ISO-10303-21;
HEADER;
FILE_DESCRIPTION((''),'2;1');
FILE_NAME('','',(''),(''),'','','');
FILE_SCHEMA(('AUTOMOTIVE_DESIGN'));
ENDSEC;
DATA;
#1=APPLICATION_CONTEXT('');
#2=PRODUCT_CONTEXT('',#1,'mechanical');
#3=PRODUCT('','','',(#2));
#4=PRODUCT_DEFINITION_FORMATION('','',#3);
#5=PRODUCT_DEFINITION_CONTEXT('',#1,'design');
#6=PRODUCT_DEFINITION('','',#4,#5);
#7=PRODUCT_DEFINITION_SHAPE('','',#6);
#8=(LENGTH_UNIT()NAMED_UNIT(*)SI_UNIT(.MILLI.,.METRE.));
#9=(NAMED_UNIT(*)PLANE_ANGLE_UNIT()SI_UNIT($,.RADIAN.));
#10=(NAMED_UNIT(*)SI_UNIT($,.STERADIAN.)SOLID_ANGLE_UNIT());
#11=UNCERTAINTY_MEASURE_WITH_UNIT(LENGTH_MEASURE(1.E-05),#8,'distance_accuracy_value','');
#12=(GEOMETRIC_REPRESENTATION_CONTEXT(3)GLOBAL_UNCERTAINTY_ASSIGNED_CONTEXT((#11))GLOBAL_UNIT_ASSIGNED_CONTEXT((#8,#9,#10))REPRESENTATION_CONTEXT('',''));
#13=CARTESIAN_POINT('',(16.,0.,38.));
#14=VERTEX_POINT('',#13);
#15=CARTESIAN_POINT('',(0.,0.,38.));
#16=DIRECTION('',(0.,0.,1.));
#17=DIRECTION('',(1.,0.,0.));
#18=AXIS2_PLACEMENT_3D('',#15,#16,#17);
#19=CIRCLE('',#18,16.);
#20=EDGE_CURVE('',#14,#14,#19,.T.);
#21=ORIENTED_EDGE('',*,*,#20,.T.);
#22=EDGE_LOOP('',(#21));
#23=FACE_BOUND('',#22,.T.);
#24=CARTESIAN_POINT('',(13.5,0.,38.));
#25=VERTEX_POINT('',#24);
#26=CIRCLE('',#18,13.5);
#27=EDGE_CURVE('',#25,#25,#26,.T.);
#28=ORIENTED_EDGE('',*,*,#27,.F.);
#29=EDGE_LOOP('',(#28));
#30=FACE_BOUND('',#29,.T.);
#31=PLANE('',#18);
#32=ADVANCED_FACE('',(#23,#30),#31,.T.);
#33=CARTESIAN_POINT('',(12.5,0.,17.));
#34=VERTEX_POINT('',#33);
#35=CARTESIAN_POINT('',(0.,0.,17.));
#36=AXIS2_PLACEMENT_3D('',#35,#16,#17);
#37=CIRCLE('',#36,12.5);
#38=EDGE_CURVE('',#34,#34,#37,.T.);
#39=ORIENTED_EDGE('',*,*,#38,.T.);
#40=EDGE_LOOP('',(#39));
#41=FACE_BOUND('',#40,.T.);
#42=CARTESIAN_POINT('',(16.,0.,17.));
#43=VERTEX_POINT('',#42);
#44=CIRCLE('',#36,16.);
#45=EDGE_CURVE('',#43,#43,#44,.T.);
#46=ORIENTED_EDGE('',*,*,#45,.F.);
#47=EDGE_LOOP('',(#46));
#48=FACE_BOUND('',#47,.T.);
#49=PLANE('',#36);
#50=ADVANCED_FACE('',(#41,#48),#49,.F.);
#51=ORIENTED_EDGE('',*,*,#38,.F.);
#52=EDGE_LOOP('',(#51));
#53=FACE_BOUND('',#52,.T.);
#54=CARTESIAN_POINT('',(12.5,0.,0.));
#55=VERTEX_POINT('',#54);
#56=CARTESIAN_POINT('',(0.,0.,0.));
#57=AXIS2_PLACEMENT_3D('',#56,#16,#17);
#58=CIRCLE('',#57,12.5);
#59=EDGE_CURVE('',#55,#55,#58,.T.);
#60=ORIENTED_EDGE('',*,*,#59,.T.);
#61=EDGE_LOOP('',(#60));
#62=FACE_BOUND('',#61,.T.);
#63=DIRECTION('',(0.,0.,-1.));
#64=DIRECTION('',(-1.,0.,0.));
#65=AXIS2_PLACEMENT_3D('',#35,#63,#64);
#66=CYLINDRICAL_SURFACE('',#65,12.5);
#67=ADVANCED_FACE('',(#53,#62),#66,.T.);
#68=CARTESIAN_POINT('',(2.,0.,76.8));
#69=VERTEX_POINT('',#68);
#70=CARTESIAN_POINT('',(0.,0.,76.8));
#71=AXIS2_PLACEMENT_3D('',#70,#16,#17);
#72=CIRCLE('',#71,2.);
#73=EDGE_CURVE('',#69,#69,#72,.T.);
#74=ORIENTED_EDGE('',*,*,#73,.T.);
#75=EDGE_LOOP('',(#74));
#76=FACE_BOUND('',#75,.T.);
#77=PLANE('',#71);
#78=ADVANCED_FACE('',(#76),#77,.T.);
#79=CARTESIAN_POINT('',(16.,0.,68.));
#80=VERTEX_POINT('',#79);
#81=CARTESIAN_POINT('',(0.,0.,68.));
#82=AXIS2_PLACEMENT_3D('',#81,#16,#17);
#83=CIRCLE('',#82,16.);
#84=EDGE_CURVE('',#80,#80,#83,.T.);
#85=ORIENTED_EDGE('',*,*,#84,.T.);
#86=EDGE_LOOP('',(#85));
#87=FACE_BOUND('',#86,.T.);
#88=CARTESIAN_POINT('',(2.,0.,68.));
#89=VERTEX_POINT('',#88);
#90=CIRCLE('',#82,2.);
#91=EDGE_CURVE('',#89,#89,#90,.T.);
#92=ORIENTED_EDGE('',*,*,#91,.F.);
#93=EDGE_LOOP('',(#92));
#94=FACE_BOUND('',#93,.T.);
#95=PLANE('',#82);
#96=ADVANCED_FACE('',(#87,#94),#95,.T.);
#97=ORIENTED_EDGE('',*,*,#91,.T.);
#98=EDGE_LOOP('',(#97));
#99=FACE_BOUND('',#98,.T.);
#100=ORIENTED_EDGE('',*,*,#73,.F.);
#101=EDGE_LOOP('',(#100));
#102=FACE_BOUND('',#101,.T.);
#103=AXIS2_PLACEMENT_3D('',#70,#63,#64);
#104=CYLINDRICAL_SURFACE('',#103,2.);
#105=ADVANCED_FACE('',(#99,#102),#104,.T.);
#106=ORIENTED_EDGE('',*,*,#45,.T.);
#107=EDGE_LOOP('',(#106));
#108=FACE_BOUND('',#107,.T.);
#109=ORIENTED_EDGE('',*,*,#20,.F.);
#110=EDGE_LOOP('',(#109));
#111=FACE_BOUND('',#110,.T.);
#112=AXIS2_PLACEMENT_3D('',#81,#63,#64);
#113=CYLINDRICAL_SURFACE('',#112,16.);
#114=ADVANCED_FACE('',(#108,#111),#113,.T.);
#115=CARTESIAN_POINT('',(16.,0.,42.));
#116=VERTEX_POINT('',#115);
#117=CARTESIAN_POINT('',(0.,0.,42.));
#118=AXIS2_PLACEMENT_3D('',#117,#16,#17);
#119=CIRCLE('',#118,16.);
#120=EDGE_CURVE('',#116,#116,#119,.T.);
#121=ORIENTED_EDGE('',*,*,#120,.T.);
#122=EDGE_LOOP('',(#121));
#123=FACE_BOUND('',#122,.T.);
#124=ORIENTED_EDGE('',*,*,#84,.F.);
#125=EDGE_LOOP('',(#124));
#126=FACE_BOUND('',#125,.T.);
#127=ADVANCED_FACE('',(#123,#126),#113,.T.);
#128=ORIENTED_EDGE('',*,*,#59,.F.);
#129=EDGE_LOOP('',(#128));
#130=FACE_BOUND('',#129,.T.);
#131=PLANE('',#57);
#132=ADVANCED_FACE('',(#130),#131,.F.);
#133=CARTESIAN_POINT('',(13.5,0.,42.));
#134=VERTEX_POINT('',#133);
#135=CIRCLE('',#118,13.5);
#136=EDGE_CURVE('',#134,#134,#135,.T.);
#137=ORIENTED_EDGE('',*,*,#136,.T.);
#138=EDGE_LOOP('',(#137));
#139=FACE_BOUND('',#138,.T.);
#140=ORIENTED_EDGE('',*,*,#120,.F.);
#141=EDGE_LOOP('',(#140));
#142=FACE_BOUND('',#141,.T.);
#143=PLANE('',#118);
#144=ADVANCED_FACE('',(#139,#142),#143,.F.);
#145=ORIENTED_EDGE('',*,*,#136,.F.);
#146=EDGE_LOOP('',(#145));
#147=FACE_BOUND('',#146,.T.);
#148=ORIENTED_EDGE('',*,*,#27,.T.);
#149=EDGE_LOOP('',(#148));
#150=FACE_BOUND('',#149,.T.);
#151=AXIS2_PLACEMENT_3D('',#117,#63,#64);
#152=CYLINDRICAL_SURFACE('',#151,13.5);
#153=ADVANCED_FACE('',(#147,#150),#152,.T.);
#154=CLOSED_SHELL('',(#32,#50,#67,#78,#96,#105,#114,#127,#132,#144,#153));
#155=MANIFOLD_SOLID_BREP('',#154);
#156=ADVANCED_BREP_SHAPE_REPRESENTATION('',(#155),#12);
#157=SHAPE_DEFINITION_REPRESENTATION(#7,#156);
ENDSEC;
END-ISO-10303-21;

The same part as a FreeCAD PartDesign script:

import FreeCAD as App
import Part
import Sketcher
Q = App.Units.Quantity

doc = App.newDocument("Part")
body = doc.addObject("PartDesign::Body", "Body")

# Sketch on XY plane
sketch1 = body.newObject("Sketcher::SketchObject", "Sketch")
sketch1.AttachmentSupport = (doc.getObject("XY_Plane"), [""])
sketch1.MapMode = "FlatFace"
sketch1.addGeometry(Part.Circle(App.Vector(0, 0, 0), App.Vector(0, 0, 1), 12.5), False)
sketch1.addConstraint([
    Sketcher.Constraint("Coincident", 0, 3, -1, 1),
    Sketcher.Constraint("Diameter", 0, Q("25 mm")),
])
pad1 = body.newObject("PartDesign::Pad", "Pad")
pad1.Profile = sketch1
pad1.Length = 17

# Sketch on XY plane
sketch2 = body.newObject("Sketcher::SketchObject", "Sketch001")
sketch2.AttachmentSupport = (doc.getObject("XY_Plane"), [""])
sketch2.MapMode = "FlatFace"
sketch2.AttachmentOffset = App.Placement(App.Vector(0, 0, 17), App.Rotation())
sketch2.addGeometry(Part.Circle(App.Vector(0, 0, 0), App.Vector(0, 0, 1), 16), False)
sketch2.addConstraint([
    Sketcher.Constraint("Coincident", 0, 3, -1, 1),
    Sketcher.Constraint("Diameter", 0, Q("32 mm")),
])
pad2 = body.newObject("PartDesign::Pad", "Pad001")
pad2.Profile = sketch2
pad2.Length = 51

# Sketch on XY plane
sketch3 = body.newObject("Sketcher::SketchObject", "Sketch002")
sketch3.AttachmentSupport = (doc.getObject("XY_Plane"), [""])
sketch3.MapMode = "FlatFace"
sketch3.AttachmentOffset = App.Placement(App.Vector(0, 0, 68), App.Rotation())
sketch3.addGeometry(Part.Circle(App.Vector(0, 0, 0), App.Vector(0, 0, 1), 2), False)
sketch3.addConstraint([
    Sketcher.Constraint("Coincident", 0, 3, -1, 1),
    Sketcher.Constraint("Diameter", 0, Q("4 mm")),
])
pad3 = body.newObject("PartDesign::Pad", "Pad002")
pad3.Profile = sketch3
pad3.Length = 8.8

# Sketch on XY plane
sketch4 = body.newObject("Sketcher::SketchObject", "Sketch003")
sketch4.AttachmentSupport = (doc.getObject("XY_Plane"), [""])
sketch4.MapMode = "FlatFace"
sketch4.AttachmentOffset = App.Placement(App.Vector(0, 0, 38), App.Rotation())
sketch4.addGeometry([
    Part.Circle(App.Vector(0, 0, 0), App.Vector(0, 0, 1), 20.782497),
    Part.Circle(App.Vector(0, 0, 0), App.Vector(0, 0, 1), 13.5),
], False)
sketch4.addConstraint([
    Sketcher.Constraint("Coincident", 0, 3, -1, 1),
    Sketcher.Constraint("Coincident", 1, 3, -1, 1),
    Sketcher.Constraint("Diameter", 1, Q("27 mm")),
    Sketcher.Constraint("Diameter", 0, Q("41.564995 mm")),
])
pocket1 = body.newObject("PartDesign::Pocket", "Pocket")
pocket1.Profile = sketch4
pocket1.Length = 4
pocket1.Reversed = True

doc.recompute()
